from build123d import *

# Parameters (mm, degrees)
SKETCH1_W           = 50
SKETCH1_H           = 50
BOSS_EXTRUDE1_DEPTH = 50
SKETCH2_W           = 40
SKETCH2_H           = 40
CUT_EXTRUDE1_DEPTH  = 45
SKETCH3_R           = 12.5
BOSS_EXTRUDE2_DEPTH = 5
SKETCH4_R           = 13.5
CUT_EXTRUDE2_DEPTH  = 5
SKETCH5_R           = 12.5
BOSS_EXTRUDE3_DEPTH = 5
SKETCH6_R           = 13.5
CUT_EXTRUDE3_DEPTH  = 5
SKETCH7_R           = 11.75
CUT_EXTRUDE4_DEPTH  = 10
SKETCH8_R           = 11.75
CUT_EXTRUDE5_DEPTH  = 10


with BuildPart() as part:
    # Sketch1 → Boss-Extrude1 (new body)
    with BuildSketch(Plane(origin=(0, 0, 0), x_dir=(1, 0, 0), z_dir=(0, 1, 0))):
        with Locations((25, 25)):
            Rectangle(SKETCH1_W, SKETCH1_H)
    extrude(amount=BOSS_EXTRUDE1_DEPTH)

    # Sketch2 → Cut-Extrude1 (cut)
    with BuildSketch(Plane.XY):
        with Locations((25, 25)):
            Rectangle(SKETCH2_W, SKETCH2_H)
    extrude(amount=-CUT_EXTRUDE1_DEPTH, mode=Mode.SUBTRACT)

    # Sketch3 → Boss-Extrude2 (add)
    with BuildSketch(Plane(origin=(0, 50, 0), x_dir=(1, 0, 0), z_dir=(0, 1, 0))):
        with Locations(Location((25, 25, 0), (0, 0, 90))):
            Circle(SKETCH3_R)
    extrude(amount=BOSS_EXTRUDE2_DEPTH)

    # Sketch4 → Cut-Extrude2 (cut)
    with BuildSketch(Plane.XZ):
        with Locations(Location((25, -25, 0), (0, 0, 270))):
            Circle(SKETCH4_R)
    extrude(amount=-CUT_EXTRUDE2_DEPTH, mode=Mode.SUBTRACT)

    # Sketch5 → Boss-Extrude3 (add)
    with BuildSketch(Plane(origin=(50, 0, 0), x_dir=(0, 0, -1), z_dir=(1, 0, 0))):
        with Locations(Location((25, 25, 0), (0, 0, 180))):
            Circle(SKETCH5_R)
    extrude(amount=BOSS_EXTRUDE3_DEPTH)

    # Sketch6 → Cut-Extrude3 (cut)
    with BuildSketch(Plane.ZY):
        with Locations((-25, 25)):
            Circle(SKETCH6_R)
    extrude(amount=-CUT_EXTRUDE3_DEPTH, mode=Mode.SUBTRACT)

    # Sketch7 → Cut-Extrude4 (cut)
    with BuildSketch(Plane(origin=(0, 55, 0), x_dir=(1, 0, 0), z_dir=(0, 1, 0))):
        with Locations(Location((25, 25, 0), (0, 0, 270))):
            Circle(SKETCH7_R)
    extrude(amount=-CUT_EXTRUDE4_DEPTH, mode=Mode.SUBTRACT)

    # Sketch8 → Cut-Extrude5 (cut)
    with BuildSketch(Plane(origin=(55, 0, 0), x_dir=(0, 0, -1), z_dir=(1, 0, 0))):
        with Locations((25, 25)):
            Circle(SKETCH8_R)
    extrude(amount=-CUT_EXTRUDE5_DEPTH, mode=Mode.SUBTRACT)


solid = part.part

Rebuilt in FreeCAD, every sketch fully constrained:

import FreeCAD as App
import Part
import Sketcher
from FreeCAD import Vector
Q = App.Units.Quantity

doc = App.newDocument("Part")
body = doc.addObject("PartDesign::Body", "Body")

# Sketch on XZ plane
sketch1 = body.newObject("Sketcher::SketchObject", "Sketch")
sketch1.AttachmentSupport = (doc.getObject("XZ_Plane"), [""])
sketch1.MapMode = "FlatFace"
sketch1.addGeometry([
    Part.LineSegment(Vector(0, -50, 0), Vector(0, 0, 0)),
    Part.LineSegment(Vector(0, 0, 0), Vector(50, 0, 0)),
    Part.LineSegment(Vector(50, 0, 0), Vector(50, -50, 0)),
    Part.LineSegment(Vector(50, -50, 0), Vector(0, -50, 0)),
], False)
sketch1.addConstraint([
    Sketcher.Constraint("Coincident", 0, 2, 1, 1),
    Sketcher.Constraint("Coincident", 1, 2, 2, 1),
    Sketcher.Constraint("Coincident", 2, 2, 3, 1),
    Sketcher.Constraint("Coincident", 3, 2, 0, 1),
    Sketcher.Constraint("Vertical", 0),
    Sketcher.Constraint("Horizontal", 1),
    Sketcher.Constraint("Vertical", 2),
    Sketcher.Constraint("Horizontal", 3),
    Sketcher.Constraint("Coincident", 0, 2, -1, 1),
    Sketcher.Constraint("Equal", 3, 0),
    Sketcher.Constraint("DistanceX", 1, 1, 1, 2, Q("50 mm")),
])
pad1 = body.newObject("PartDesign::Pad", "Pad")
pad1.Profile = sketch1
pad1.Length = 50
pad1.Reversed = True

# Sketch on XY plane
sketch2 = body.newObject("Sketcher::SketchObject", "Sketch001")
sketch2.AttachmentSupport = (doc.getObject("XY_Plane"), [""])
sketch2.MapMode = "FlatFace"
sketch2.addGeometry([
    Part.LineSegment(Vector(5, 45, 0), Vector(5, 5, 0)),
    Part.LineSegment(Vector(5, 5, 0), Vector(45, 5, 0)),
    Part.LineSegment(Vector(45, 5, 0), Vector(45, 45, 0)),
    Part.LineSegment(Vector(45, 45, 0), Vector(5, 45, 0)),
], False)
sketch2.addConstraint([
    Sketcher.Constraint("Coincident", 0, 2, 1, 1),
    Sketcher.Constraint("Coincident", 1, 2, 2, 1),
    Sketcher.Constraint("Coincident", 2, 2, 3, 1),
    Sketcher.Constraint("Coincident", 3, 2, 0, 1),
    Sketcher.Constraint("Vertical", 0),
    Sketcher.Constraint("Horizontal", 1),
    Sketcher.Constraint("Vertical", 2),
    Sketcher.Constraint("Horizontal", 3),
    Sketcher.Constraint("Equal", 3, 0),
    Sketcher.Constraint("DistanceX", 1, 1, 1, 2, Q("40 mm")),
    Sketcher.Constraint("DistanceX", -1, 1, 0, 2, Q("5 mm")),
    Sketcher.Constraint("DistanceY", -1, 1, 0, 2, Q("5 mm")),
])
pocket1 = body.newObject("PartDesign::Pocket", "Pocket")
pocket1.Profile = sketch2
pocket1.Length = 45

# Sketch on XZ plane
sketch3 = body.newObject("Sketcher::SketchObject", "Sketch002")
sketch3.AttachmentSupport = (doc.getObject("XZ_Plane"), [""])
sketch3.MapMode = "FlatFace"
sketch3.AttachmentOffset = App.Placement(Vector(0, 0, -50), App.Rotation())
sketch3.addGeometry(Part.Circle(Vector(25, -25, 0), Vector(0, 0, 1), 12), False)
sketch3.addConstraint([
    Sketcher.Constraint("Diameter", 0, Q("25 mm")),
    Sketcher.Constraint("DistanceX", -1, 1, 0, 3, Q("25 mm")),
    Sketcher.Constraint("DistanceY", 0, 3, -1, 1, Q("25 mm")),
])
pad2 = body.newObject("PartDesign::Pad", "Pad001")
pad2.Profile = sketch3
pad2.Length = 5
pad2.Reversed = True

# Sketch on XZ plane
sketch4 = body.newObject("Sketcher::SketchObject", "Sketch003")
sketch4.AttachmentSupport = (doc.getObject("XZ_Plane"), [""])
sketch4.MapMode = "FlatFace"
sketch4.addGeometry(Part.Circle(Vector(25, -25, 0), Vector(0, 0, 1), 14), False)
sketch4.addConstraint([
    Sketcher.Constraint("Diameter", 0, Q("27 mm")),
    Sketcher.Constraint("DistanceX", -1, 1, 0, 3, Q("25 mm")),
    Sketcher.Constraint("DistanceY", 0, 3, -1, 1, Q("25 mm")),
])
pocket2 = body.newObject("PartDesign::Pocket", "Pocket001")
pocket2.Profile = sketch4
pocket2.Length = 5

# Sketch on YZ plane
sketch5 = body.newObject("Sketcher::SketchObject", "Sketch004")
sketch5.AttachmentSupport = (doc.getObject("YZ_Plane"), [""])
sketch5.MapMode = "FlatFace"
sketch5.AttachmentOffset = App.Placement(Vector(0, 0, 50), App.Rotation())
sketch5.addGeometry(Part.Circle(Vector(25, -25, 0), Vector(0, 0, 1), 12), False)
sketch5.addConstraint([
    Sketcher.Constraint("Diameter", 0, Q("25 mm")),
    Sketcher.Constraint("DistanceX", -1, 1, 0, 3, Q("25 mm")),
    Sketcher.Constraint("DistanceY", 0, 3, -1, 1, Q("25 mm")),
])
pad3 = body.newObject("PartDesign::Pad", "Pad002")
pad3.Profile = sketch5
pad3.Length = 5

# Sketch on YZ plane
sketch6 = body.newObject("Sketcher::SketchObject", "Sketch005")
sketch6.AttachmentSupport = (doc.getObject("YZ_Plane"), [""])
sketch6.MapMode = "FlatFace"
sketch6.addGeometry(Part.Circle(Vector(25, -25, 0), Vector(0, 0, 1), 14), False)
sketch6.addConstraint([
    Sketcher.Constraint("Diameter", 0, Q("27 mm")),
    Sketcher.Constraint("DistanceX", -1, 1, 0, 3, Q("25 mm")),
    Sketcher.Constraint("DistanceY", 0, 3, -1, 1, Q("25 mm")),
])
pocket3 = body.newObject("PartDesign::Pocket", "Pocket002")
pocket3.Profile = sketch6
pocket3.Length = 5
pocket3.Reversed = True

# Sketch on XZ plane
sketch7 = body.newObject("Sketcher::SketchObject", "Sketch006")
sketch7.AttachmentSupport = (doc.getObject("XZ_Plane"), [""])
sketch7.MapMode = "FlatFace"
sketch7.AttachmentOffset = App.Placement(Vector(0, 0, -55), App.Rotation())
sketch7.addGeometry(Part.Circle(Vector(25, -25, 0), Vector(0, 0, 1), 12), False)
sketch7.addConstraint([
    Sketcher.Constraint("Diameter", 0, Q("23.5 mm")),
    Sketcher.Constraint("DistanceX", -1, 1, 0, 3, Q("25 mm")),
    Sketcher.Constraint("DistanceY", 0, 3, -1, 1, Q("25 mm")),
])
pocket4 = body.newObject("PartDesign::Pocket", "Pocket003")
pocket4.Profile = sketch7
pocket4.Length = 10
pocket4.Reversed = True

# Sketch on YZ plane
sketch8 = body.newObject("Sketcher::SketchObject", "Sketch007")
sketch8.AttachmentSupport = (doc.getObject("YZ_Plane"), [""])
sketch8.MapMode = "FlatFace"
sketch8.AttachmentOffset = App.Placement(Vector(0, 0, 55), App.Rotation())
sketch8.addGeometry(Part.Circle(Vector(25, -25, 0), Vector(0, 0, 1), 12), False)
sketch8.addConstraint([
    Sketcher.Constraint("Diameter", 0, Q("23.5 mm")),
    Sketcher.Constraint("DistanceX", -1, 1, 0, 3, Q("25 mm")),
    Sketcher.Constraint("DistanceY", 0, 3, -1, 1, Q("25 mm")),
])
pocket5 = body.newObject("PartDesign::Pocket", "Pocket004")
pocket5.Profile = sketch8
pocket5.Length = 10

doc.recompute()
